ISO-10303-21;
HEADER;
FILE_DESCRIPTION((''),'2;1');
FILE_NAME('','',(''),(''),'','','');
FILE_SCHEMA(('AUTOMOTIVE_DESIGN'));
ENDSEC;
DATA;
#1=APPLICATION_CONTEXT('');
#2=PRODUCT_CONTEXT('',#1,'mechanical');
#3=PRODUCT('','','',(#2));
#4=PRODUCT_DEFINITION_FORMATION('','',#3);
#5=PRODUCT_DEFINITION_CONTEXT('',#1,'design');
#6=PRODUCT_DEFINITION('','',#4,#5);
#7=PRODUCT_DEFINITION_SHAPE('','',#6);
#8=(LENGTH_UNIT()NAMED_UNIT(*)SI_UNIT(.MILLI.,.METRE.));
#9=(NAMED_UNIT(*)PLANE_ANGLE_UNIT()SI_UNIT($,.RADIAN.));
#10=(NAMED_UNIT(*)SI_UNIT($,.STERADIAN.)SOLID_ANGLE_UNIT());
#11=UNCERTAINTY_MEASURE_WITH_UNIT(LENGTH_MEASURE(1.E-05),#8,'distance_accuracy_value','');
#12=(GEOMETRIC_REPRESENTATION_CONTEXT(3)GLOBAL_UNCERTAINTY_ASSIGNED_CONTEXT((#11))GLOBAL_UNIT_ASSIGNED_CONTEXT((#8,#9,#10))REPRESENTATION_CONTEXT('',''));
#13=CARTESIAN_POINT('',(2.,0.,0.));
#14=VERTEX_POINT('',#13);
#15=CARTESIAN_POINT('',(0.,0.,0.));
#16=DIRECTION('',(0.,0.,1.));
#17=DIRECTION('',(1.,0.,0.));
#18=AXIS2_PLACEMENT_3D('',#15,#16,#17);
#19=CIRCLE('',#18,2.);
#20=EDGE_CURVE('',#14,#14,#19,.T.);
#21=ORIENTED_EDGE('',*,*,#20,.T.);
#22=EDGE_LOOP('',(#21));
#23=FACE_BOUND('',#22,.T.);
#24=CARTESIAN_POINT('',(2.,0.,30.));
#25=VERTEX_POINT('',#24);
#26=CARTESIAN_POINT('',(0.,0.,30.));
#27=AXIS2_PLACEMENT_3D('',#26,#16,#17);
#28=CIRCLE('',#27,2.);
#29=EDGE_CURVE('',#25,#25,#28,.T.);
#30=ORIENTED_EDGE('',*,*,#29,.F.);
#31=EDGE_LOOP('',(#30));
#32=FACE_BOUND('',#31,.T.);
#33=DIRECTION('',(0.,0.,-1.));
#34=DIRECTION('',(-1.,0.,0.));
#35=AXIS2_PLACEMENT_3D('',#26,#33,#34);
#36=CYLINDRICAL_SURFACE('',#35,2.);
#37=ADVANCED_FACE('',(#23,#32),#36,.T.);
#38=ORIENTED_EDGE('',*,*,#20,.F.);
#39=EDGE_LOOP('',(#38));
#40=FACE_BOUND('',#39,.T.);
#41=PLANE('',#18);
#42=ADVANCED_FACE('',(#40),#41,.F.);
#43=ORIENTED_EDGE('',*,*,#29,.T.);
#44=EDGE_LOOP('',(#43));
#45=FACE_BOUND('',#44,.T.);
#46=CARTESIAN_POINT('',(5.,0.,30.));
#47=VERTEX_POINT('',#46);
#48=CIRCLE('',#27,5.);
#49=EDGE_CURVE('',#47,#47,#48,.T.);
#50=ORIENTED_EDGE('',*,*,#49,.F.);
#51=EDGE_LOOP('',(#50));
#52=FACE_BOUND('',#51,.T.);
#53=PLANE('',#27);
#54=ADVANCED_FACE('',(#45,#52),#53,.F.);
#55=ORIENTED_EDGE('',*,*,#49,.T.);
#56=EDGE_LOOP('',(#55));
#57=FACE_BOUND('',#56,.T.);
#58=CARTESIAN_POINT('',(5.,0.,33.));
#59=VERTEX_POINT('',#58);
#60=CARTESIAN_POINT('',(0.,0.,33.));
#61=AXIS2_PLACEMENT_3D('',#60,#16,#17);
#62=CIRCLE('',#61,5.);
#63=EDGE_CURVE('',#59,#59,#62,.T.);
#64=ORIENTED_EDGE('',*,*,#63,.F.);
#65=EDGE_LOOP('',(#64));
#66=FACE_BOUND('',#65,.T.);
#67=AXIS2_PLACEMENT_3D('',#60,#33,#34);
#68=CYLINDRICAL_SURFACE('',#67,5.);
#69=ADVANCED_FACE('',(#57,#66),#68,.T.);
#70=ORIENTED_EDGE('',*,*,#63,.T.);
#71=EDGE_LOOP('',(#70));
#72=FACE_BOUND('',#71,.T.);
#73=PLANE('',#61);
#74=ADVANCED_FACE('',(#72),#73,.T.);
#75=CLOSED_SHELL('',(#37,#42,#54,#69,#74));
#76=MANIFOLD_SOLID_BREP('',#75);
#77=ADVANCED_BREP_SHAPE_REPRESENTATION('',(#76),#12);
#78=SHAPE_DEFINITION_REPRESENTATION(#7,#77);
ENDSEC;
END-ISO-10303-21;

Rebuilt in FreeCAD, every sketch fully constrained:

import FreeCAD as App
import Part
import Sketcher
from FreeCAD import Vector

doc = App.newDocument("Part")
body = doc.addObject("PartDesign::Body", "Body")

sketch1 = body.newObject("Sketcher::SketchObject", "Sketch")
sketch1.AttachmentSupport = (doc.getObject("XY_Plane"), [""])
sketch1.MapMode = "FlatFace"
sketch1.addGeometry(Part.Circle(Vector(0, 0, 0), Vector(0, 0, 1), 2), False)
sketch1.addConstraint(Sketcher.Constraint("Coincident", 0, 3, -1, 1))
sketch1.addConstraint(Sketcher.Constraint("Diameter", 0, 4.0))
pad1 = body.newObject("PartDesign::Pad", "Pad")
pad1.Profile = sketch1
pad1.Length = 30

sketch2 = body.newObject("Sketcher::SketchObject", "Sketch001")
sketch2.AttachmentSupport = (doc.getObject("XY_Plane"), [""])
sketch2.MapMode = "FlatFace"
sketch2.AttachmentOffset = App.Placement(Vector(0, 0, 30), App.Rotation())
sketch2.addGeometry(Part.Circle(Vector(0, 0, 0), Vector(0, 0, 1), 5), False)
sketch2.addConstraint(Sketcher.Constraint("Coincident", 0, 3, -1, 1))
sketch2.addConstraint(Sketcher.Constraint("Diameter", 0, 10.0))
pad2 = body.newObject("PartDesign::Pad", "Pad001")
pad2.Profile = sketch2
pad2.Length = 3

doc.recompute()
